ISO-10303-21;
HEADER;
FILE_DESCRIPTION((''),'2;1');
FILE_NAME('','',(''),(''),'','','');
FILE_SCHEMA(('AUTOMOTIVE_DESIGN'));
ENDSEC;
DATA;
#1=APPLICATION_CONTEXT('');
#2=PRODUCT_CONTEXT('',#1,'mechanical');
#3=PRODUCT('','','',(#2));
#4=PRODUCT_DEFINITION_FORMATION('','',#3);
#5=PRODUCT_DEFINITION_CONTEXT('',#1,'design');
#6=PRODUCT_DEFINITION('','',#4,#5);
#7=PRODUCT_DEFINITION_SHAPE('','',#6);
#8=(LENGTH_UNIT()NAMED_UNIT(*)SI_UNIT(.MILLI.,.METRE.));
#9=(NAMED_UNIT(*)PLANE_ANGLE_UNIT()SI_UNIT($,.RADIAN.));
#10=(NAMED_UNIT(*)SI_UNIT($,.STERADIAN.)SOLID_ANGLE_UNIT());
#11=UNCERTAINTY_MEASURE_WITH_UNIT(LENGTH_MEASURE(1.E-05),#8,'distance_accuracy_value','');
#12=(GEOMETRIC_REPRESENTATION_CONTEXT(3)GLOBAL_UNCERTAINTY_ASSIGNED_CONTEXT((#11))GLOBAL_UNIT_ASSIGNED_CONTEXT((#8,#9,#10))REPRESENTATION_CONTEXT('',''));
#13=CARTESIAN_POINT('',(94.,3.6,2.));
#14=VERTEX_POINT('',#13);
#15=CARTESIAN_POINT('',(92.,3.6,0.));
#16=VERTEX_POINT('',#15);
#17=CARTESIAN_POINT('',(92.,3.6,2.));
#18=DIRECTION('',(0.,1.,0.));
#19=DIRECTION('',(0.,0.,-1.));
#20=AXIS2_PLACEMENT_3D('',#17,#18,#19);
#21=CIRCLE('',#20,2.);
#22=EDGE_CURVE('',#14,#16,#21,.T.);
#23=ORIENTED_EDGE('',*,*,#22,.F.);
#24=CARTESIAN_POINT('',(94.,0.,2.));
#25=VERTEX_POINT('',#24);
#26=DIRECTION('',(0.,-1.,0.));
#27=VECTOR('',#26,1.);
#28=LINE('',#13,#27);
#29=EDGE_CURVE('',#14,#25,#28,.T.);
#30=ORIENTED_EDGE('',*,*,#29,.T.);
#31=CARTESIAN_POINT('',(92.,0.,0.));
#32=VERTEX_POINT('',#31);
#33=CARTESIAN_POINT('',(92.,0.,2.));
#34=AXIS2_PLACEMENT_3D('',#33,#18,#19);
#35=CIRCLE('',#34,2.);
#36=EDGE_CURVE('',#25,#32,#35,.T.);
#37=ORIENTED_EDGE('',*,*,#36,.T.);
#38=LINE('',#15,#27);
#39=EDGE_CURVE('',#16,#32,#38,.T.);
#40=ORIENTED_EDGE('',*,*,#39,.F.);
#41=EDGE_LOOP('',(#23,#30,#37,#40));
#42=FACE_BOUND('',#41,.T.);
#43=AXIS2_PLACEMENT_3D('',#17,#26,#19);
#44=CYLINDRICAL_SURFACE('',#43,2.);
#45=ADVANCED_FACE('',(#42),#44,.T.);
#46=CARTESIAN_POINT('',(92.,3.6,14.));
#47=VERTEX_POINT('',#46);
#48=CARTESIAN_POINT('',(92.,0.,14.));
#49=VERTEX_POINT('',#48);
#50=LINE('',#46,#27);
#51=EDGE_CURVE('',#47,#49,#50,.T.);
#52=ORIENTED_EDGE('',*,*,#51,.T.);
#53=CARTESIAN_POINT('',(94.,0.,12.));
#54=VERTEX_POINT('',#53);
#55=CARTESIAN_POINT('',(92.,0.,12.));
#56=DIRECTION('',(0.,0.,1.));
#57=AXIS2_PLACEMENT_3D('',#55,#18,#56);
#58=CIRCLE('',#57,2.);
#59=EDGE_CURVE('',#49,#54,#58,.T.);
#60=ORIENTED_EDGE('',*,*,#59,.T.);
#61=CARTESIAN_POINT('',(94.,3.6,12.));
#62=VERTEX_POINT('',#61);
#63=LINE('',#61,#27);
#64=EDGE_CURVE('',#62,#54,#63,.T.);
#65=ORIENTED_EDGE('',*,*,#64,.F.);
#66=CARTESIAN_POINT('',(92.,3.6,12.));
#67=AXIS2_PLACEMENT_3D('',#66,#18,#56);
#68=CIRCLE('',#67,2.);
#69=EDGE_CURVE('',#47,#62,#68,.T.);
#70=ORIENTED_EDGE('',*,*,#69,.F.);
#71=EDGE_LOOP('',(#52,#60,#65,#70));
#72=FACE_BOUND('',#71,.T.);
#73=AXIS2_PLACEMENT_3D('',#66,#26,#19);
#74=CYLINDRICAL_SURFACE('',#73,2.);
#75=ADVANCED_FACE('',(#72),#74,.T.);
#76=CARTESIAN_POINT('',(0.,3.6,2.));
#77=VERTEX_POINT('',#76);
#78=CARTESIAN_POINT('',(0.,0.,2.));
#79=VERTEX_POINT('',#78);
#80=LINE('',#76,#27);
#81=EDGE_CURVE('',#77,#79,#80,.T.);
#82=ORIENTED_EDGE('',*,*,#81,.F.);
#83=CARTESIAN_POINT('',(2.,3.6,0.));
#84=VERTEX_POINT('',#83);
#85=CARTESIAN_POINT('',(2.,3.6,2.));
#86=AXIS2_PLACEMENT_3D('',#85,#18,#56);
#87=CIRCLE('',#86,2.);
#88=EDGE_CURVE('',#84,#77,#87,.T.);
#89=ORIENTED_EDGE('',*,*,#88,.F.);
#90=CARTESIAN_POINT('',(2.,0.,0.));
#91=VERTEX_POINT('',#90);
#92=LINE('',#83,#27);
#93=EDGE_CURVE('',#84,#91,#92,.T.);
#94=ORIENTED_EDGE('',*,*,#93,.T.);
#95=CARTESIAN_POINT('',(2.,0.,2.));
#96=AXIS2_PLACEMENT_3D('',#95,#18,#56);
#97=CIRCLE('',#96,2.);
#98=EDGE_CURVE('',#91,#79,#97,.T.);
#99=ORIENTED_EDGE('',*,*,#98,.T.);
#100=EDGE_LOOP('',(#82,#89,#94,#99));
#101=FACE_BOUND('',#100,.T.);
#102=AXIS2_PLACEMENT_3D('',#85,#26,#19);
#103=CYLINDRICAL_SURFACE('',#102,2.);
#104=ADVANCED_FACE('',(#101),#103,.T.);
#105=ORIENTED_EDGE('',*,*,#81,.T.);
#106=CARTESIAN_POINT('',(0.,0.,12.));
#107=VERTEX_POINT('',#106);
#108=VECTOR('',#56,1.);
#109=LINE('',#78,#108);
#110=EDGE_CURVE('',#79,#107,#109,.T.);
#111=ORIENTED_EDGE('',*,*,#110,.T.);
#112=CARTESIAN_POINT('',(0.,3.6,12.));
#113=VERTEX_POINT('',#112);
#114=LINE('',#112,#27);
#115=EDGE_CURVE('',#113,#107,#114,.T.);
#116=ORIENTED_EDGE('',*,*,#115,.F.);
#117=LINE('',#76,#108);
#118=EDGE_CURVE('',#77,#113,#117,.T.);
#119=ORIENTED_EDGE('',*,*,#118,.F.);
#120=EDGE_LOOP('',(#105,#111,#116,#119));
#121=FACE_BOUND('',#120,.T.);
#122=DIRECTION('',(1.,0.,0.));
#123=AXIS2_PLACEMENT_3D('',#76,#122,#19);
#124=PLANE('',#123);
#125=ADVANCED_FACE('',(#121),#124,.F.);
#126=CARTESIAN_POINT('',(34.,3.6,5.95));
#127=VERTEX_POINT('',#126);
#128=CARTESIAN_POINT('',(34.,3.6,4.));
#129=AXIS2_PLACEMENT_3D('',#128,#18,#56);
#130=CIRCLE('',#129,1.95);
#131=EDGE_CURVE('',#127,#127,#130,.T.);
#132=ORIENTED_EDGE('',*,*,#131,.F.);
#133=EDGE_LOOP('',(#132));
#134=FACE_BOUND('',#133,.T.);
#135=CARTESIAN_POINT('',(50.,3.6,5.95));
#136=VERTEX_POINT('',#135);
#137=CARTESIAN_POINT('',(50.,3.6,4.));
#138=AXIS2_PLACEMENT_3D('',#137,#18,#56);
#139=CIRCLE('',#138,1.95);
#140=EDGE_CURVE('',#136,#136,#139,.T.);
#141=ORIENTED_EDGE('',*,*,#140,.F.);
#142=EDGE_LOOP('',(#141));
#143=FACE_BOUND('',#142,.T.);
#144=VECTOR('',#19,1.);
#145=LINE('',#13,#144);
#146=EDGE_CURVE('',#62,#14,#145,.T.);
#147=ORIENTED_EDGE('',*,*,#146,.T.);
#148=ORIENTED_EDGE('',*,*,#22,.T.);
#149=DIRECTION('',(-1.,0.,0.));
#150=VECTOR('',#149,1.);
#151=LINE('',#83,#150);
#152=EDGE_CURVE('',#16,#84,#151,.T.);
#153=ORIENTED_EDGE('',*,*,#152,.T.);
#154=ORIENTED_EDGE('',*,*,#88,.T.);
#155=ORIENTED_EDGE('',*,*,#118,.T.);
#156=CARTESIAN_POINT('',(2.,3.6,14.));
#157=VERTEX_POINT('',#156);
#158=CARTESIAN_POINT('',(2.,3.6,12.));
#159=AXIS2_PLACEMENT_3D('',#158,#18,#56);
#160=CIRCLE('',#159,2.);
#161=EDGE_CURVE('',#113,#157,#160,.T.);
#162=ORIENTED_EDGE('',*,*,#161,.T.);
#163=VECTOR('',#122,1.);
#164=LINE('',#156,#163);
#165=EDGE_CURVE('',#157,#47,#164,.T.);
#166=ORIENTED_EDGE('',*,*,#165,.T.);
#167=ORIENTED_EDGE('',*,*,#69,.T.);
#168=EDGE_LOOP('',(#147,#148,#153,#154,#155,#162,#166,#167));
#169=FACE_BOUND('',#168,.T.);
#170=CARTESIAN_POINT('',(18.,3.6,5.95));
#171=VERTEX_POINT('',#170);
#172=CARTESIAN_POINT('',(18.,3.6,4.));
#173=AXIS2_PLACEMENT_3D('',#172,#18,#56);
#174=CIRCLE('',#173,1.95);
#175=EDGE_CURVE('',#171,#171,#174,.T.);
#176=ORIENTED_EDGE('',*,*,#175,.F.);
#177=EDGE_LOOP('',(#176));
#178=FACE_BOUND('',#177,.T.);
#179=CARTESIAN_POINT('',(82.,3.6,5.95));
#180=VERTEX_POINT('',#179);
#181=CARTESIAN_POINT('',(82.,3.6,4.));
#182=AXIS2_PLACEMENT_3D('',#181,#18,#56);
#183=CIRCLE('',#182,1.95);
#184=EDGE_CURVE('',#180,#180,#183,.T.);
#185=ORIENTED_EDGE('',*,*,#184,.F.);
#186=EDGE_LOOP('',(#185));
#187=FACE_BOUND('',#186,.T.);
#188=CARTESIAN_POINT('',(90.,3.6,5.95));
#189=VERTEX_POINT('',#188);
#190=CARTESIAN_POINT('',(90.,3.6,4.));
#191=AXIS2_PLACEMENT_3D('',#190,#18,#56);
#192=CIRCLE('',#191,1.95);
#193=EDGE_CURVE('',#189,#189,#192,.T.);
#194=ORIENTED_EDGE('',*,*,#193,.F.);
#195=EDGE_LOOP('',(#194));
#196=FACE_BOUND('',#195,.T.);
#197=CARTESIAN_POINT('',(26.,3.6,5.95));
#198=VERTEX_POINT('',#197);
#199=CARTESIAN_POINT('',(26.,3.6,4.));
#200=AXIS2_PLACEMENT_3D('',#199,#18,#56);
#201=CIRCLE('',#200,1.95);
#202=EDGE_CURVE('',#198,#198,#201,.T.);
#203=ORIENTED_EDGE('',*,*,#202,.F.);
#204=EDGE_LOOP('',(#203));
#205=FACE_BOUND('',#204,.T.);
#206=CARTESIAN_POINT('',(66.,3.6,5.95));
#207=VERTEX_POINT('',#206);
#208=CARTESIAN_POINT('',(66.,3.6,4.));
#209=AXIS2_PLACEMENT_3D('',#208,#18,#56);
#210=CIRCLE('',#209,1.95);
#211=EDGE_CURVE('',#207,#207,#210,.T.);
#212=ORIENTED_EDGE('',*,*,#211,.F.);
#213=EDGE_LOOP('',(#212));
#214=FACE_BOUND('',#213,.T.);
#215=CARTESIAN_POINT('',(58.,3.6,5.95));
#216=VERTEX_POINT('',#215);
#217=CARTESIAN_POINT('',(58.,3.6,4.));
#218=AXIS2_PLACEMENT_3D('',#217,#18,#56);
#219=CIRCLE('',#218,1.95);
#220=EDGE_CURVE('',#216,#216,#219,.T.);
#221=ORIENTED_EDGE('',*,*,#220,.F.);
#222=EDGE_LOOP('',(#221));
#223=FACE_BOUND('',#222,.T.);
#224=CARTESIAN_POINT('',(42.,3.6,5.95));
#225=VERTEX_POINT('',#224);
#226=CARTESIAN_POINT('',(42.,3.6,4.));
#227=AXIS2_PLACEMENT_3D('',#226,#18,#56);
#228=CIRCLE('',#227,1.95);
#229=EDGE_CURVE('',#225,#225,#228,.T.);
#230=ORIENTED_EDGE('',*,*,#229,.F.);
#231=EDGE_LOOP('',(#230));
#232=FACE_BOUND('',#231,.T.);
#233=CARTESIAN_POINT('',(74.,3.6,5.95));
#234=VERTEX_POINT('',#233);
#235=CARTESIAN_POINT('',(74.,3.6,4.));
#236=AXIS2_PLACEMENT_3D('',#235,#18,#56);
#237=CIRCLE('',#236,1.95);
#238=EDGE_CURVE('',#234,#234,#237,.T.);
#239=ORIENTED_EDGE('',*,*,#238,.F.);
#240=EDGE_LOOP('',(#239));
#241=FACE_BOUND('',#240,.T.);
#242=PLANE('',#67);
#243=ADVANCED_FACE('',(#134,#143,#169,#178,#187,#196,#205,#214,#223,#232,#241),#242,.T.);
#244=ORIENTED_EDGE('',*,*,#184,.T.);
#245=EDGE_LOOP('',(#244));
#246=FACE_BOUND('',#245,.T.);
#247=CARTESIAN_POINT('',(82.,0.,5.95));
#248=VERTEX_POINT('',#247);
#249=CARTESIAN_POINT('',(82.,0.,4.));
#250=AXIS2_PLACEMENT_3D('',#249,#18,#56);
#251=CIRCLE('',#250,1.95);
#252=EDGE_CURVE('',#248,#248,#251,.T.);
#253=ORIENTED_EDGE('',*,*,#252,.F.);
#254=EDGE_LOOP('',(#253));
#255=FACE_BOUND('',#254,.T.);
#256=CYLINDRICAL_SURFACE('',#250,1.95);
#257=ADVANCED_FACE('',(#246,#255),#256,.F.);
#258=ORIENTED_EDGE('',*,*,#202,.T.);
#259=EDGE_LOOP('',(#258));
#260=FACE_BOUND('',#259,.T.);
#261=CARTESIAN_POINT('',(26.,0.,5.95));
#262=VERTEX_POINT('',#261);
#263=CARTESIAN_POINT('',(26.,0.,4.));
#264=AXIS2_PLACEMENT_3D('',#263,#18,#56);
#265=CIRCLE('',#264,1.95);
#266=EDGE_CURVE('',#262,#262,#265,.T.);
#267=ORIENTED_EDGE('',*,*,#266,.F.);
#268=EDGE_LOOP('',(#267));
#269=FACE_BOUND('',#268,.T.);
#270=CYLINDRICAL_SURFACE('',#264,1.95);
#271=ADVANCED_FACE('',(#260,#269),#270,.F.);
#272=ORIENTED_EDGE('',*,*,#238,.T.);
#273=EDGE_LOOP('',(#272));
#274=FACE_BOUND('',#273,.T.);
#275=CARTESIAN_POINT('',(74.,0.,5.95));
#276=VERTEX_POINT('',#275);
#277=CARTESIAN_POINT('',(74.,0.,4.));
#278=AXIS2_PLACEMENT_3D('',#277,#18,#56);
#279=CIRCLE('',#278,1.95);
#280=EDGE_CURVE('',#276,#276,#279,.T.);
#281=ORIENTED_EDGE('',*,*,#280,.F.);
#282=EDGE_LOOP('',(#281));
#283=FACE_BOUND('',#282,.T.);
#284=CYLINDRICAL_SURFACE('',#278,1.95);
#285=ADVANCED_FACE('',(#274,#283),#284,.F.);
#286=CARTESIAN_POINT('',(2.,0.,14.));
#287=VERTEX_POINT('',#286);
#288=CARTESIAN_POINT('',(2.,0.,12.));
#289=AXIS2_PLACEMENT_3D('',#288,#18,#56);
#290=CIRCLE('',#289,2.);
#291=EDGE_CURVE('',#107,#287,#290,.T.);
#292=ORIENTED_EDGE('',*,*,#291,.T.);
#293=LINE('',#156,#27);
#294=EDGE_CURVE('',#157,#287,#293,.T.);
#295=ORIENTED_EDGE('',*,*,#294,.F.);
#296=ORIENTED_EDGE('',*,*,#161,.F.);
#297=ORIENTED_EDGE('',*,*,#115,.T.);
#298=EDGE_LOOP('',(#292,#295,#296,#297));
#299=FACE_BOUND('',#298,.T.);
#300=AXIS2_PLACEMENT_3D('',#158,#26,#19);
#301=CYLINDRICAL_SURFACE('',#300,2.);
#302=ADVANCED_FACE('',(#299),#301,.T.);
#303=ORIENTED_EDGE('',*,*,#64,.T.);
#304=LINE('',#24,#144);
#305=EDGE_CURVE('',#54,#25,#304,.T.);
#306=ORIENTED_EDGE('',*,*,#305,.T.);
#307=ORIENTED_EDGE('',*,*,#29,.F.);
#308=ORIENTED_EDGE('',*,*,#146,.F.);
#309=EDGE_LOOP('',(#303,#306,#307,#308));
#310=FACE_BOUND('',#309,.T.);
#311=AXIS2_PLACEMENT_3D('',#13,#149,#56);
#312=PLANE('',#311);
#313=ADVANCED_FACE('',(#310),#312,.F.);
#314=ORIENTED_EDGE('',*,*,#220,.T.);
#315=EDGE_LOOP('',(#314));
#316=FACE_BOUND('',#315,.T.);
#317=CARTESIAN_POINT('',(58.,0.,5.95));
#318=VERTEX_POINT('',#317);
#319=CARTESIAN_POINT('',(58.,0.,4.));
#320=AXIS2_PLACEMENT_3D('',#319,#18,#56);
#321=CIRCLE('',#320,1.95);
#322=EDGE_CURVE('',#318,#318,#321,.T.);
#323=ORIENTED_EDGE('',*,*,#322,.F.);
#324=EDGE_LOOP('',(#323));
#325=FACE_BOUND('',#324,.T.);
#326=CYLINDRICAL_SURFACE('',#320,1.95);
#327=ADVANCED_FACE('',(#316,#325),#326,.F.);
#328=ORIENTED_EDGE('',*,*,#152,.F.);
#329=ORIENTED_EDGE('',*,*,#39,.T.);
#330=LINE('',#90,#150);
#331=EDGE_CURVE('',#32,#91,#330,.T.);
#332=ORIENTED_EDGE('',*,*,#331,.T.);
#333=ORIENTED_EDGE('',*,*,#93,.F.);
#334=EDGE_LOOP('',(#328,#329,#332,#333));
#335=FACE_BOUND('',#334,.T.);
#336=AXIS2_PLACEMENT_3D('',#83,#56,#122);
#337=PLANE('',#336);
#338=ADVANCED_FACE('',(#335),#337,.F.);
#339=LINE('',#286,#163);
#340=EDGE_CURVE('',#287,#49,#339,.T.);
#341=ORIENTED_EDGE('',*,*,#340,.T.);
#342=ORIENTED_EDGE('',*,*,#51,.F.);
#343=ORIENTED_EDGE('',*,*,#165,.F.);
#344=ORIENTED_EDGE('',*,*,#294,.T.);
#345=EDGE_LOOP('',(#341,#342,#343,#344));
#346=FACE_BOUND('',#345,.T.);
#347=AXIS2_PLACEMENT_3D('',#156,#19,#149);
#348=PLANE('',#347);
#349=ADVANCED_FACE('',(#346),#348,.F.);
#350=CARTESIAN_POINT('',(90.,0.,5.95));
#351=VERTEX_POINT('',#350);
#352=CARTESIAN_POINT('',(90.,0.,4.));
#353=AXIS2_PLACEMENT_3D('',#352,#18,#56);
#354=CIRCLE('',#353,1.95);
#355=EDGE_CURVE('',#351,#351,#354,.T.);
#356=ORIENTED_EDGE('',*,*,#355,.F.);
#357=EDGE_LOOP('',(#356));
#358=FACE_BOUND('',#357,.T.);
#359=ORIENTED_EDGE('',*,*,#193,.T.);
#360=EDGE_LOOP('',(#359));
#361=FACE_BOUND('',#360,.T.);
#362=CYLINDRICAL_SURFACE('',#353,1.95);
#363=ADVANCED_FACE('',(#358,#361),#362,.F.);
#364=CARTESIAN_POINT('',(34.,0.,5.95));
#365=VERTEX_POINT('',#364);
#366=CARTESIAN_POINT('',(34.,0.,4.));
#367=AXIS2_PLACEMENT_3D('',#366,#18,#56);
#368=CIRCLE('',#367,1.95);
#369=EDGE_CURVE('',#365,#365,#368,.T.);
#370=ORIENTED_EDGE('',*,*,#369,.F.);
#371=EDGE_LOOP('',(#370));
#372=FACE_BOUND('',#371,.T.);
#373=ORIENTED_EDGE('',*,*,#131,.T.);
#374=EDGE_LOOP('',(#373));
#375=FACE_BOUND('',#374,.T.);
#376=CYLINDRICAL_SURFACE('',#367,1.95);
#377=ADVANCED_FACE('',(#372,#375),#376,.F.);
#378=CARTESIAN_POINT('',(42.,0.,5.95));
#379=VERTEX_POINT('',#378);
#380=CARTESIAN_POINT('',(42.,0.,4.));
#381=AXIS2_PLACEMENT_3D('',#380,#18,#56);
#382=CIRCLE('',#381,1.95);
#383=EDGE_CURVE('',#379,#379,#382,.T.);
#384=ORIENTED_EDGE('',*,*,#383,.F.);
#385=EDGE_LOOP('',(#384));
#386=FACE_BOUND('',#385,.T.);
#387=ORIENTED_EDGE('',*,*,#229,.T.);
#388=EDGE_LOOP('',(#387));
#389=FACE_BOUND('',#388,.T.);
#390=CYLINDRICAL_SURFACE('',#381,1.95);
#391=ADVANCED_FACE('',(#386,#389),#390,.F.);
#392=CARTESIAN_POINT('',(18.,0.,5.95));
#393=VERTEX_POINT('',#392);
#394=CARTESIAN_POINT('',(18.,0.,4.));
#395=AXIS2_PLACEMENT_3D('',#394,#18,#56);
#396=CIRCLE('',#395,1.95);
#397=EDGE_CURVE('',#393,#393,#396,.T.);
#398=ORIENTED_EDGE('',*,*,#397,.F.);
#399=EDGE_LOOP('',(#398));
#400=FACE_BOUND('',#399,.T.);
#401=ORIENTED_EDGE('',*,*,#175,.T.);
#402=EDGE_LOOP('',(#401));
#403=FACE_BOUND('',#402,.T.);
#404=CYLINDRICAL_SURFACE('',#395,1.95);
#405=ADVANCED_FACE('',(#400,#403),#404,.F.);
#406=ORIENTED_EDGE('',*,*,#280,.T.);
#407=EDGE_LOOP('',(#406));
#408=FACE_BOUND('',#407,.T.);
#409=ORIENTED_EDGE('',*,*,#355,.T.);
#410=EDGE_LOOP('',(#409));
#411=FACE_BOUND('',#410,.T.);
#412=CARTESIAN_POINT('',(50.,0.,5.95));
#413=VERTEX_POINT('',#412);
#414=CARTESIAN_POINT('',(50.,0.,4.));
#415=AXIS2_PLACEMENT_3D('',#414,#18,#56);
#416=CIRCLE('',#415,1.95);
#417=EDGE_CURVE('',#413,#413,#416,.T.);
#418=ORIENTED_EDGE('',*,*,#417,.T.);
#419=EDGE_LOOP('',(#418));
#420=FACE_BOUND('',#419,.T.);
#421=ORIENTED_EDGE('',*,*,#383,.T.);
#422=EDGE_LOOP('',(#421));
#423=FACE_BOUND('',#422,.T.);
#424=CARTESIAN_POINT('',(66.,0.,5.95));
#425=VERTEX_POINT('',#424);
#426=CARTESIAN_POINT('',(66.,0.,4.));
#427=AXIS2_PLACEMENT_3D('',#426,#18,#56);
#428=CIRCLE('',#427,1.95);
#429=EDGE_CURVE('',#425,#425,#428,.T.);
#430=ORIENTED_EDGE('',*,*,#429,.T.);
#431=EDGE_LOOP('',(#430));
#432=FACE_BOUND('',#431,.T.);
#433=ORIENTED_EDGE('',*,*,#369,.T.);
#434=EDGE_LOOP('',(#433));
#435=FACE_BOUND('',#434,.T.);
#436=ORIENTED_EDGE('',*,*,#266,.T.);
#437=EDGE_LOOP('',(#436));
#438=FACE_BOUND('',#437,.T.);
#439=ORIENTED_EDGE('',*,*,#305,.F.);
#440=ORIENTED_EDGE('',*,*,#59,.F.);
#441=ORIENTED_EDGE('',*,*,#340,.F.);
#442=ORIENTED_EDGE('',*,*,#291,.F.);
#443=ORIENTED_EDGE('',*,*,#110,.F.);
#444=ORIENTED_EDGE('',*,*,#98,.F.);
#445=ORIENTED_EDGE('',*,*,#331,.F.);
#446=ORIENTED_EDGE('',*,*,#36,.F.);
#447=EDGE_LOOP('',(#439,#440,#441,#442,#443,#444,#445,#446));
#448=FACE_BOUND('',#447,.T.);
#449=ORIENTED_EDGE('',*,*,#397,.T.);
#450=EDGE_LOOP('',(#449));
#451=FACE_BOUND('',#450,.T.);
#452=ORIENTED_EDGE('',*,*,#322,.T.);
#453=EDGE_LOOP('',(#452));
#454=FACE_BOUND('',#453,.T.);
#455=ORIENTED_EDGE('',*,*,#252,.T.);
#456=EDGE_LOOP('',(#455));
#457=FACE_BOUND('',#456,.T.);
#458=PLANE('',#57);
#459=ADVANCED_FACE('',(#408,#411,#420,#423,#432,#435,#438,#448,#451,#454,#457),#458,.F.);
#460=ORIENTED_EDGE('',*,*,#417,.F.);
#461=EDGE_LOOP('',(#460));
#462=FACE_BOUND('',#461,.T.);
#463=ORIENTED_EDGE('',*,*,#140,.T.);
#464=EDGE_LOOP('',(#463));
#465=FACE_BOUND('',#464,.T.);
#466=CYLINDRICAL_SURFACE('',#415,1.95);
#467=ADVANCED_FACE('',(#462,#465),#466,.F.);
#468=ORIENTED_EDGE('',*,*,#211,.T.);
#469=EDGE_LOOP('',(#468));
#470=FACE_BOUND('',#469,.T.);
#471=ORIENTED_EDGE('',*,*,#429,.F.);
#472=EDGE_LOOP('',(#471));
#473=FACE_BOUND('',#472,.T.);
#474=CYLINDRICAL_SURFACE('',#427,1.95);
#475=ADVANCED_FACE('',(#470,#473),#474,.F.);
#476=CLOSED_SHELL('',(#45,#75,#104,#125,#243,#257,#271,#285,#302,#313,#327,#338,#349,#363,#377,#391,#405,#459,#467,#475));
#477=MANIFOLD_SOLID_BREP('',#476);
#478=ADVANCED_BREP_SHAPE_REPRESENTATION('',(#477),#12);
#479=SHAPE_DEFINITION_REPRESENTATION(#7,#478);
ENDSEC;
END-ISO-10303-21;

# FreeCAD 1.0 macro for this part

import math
import FreeCAD as App
import Part
import Sketcher
from FreeCAD import Vector
Q = App.Units.Quantity

doc = App.newDocument("Part")
body = doc.addObject("PartDesign::Body", "Body")

# Sketch on XZ plane
sketch1 = body.newObject("Sketcher::SketchObject", "Sketch")
sketch1.AttachmentSupport = (doc.getObject("XZ_Plane"), [""])
sketch1.MapMode = "FlatFace"
sketch1.addGeometry([
    Part.LineSegment(Vector(92, 0, 0), Vector(2, 0, 0)),  # 0
    Part.ArcOfCircle(Part.Circle(Vector(2, 2, 0), Vector(0, 0, 1), 2), math.radians(-180), math.radians(-90)),  # 1
    Part.LineSegment(Vector(0, 2, 0), Vector(0, 12, 0)),  # 2
    Part.ArcOfCircle(Part.Circle(Vector(2, 12, 0), Vector(0, 0, 1), 2), math.radians(90), math.radians(180)),  # 3
    Part.LineSegment(Vector(2, 14, 0), Vector(92, 14, 0)),  # 4
    Part.ArcOfCircle(Part.Circle(Vector(92, 12, 0), Vector(0, 0, 1), 2), math.radians(0), math.radians(90)),  # 5
    Part.LineSegment(Vector(94, 12, 0), Vector(94, 2, 0)),  # 6
    Part.ArcOfCircle(Part.Circle(Vector(92, 2, 0), Vector(0, 0, 1), 2), math.radians(-90), math.radians(0)),  # 7
], False)
sketch1.addConstraint([
    Sketcher.Constraint("Tangent", 0, 2, 1, 2),
    Sketcher.Constraint("Tangent", 1, 1, 2, 1),
    Sketcher.Constraint("Tangent", 2, 2, 3, 2),
    Sketcher.Constraint("Tangent", 3, 1, 4, 1),
    Sketcher.Constraint("Tangent", 4, 2, 5, 2),
    Sketcher.Constraint("Tangent", 5, 1, 6, 1),
    Sketcher.Constraint("Tangent", 6, 2, 7, 2),
    Sketcher.Constraint("Tangent", 7, 1, 0, 1),
    Sketcher.Constraint("Horizontal", 0),
    Sketcher.Constraint("Vertical", 2),
    Sketcher.Constraint("Horizontal", 4),
    Sketcher.Constraint("Vertical", 6),
    Sketcher.Constraint("Equal", 1, 3),
    Sketcher.Constraint("Equal", 3, 5),
    Sketcher.Constraint("Equal", 5, 7),
    Sketcher.Constraint("PointOnObject", 0, 2, -1),
    Sketcher.Constraint("PointOnObject", 1, 1, -2),
    Sketcher.Constraint("Radius", 1, Q("2 mm")),
    Sketcher.Constraint("DistanceX", 0, 2, 0, 1, Q("90 mm")),
    Sketcher.Constraint("DistanceY", 2, 1, 2, 2, Q("10 mm")),
])
pad1 = body.newObject("PartDesign::Pad", "Pad")
pad1.Profile = sketch1
pad1.Length = 3.6
pad1.Reversed = True

# Sketch on XZ plane
sketch2 = body.newObject("Sketcher::SketchObject", "Sketch001")
sketch2.AttachmentSupport = (doc.getObject("XZ_Plane"), [""])
sketch2.MapMode = "FlatFace"
sketch2.AttachmentOffset = App.Placement(Vector(0, 0, -3.6), App.Rotation())
sketch2.addGeometry([
    Part.Circle(Vector(90, 4, 0), Vector(0, 0, 1), 1.9),  # 0
    Part.Circle(Vector(82, 4, 0), Vector(0, 0, 1), 1.9),  # 1
    Part.Circle(Vector(18, 4, 0), Vector(0, 0, 1), 1.9),  # 2
    Part.Circle(Vector(26, 4, 0), Vector(0, 0, 1), 1.9),  # 3
    Part.Circle(Vector(34, 4, 0), Vector(0, 0, 1), 1.9),  # 4
    Part.Circle(Vector(42, 4, 0), Vector(0, 0, 1), 1.9),  # 5
    Part.Circle(Vector(50, 4, 0), Vector(0, 0, 1), 1.9),  # 6
    Part.Circle(Vector(58, 4, 0), Vector(0, 0, 1), 1.9),  # 7
    Part.Circle(Vector(66, 4, 0), Vector(0, 0, 1), 1.9),  # 8
    Part.Circle(Vector(74, 4, 0), Vector(0, 0, 1), 1.9),  # 9
], False)
sketch2.addConstraint([
    Sketcher.Constraint("Equal", 0, 1),
    Sketcher.Constraint("Equal", 1, 2),
    Sketcher.Constraint("Equal", 2, 3),
    Sketcher.Constraint("Equal", 3, 4),
    Sketcher.Constraint("Equal", 4, 5),
    Sketcher.Constraint("Equal", 5, 6),
    Sketcher.Constraint("Equal", 6, 7),
    Sketcher.Constraint("Equal", 7, 8),
    Sketcher.Constraint("Equal", 8, 9),
    Sketcher.Constraint("Horizontal", 0, 3, 1, 3),
    Sketcher.Constraint("Horizontal", 1, 3, 2, 3),
    Sketcher.Constraint("Horizontal", 2, 3, 3, 3),
    Sketcher.Constraint("Horizontal", 3, 3, 4, 3),
    Sketcher.Constraint("Horizontal", 4, 3, 5, 3),
    Sketcher.Constraint("Horizontal", 5, 3, 6, 3),
    Sketcher.Constraint("Horizontal", 6, 3, 7, 3),
    Sketcher.Constraint("Horizontal", 7, 3, 8, 3),
    Sketcher.Constraint("Horizontal", 8, 3, 9, 3),
    Sketcher.Constraint("Diameter", 0, Q("3.9 mm")),
    Sketcher.Constraint("DistanceX", -1, 1, 0, 3, Q("90 mm")),
    Sketcher.Constraint("DistanceY", -1, 1, 0, 3, Q("4 mm")),
    Sketcher.Constraint("DistanceX", -1, 1, 1, 3, Q("82 mm")),
    Sketcher.Constraint("DistanceX", -1, 1, 2, 3, Q("18 mm")),
    Sketcher.Constraint("DistanceX", -1, 1, 3, 3, Q("26 mm")),
    Sketcher.Constraint("DistanceX", -1, 1, 4, 3, Q("34 mm")),
    Sketcher.Constraint("DistanceX", -1, 1, 5, 3, Q("42 mm")),
    Sketcher.Constraint("DistanceX", -1, 1, 6, 3, Q("50 mm")),
    Sketcher.Constraint("DistanceX", -1, 1, 7, 3, Q("58 mm")),
    Sketcher.Constraint("DistanceX", -1, 1, 8, 3, Q("66 mm")),
    Sketcher.Constraint("DistanceX", -1, 1, 9, 3, Q("74 mm")),
])
pocket1 = body.newObject("PartDesign::Pocket", "Pocket")
pocket1.Profile = sketch2
pocket1.Length = 3.6
pocket1.Reversed = True

doc.recompute()
